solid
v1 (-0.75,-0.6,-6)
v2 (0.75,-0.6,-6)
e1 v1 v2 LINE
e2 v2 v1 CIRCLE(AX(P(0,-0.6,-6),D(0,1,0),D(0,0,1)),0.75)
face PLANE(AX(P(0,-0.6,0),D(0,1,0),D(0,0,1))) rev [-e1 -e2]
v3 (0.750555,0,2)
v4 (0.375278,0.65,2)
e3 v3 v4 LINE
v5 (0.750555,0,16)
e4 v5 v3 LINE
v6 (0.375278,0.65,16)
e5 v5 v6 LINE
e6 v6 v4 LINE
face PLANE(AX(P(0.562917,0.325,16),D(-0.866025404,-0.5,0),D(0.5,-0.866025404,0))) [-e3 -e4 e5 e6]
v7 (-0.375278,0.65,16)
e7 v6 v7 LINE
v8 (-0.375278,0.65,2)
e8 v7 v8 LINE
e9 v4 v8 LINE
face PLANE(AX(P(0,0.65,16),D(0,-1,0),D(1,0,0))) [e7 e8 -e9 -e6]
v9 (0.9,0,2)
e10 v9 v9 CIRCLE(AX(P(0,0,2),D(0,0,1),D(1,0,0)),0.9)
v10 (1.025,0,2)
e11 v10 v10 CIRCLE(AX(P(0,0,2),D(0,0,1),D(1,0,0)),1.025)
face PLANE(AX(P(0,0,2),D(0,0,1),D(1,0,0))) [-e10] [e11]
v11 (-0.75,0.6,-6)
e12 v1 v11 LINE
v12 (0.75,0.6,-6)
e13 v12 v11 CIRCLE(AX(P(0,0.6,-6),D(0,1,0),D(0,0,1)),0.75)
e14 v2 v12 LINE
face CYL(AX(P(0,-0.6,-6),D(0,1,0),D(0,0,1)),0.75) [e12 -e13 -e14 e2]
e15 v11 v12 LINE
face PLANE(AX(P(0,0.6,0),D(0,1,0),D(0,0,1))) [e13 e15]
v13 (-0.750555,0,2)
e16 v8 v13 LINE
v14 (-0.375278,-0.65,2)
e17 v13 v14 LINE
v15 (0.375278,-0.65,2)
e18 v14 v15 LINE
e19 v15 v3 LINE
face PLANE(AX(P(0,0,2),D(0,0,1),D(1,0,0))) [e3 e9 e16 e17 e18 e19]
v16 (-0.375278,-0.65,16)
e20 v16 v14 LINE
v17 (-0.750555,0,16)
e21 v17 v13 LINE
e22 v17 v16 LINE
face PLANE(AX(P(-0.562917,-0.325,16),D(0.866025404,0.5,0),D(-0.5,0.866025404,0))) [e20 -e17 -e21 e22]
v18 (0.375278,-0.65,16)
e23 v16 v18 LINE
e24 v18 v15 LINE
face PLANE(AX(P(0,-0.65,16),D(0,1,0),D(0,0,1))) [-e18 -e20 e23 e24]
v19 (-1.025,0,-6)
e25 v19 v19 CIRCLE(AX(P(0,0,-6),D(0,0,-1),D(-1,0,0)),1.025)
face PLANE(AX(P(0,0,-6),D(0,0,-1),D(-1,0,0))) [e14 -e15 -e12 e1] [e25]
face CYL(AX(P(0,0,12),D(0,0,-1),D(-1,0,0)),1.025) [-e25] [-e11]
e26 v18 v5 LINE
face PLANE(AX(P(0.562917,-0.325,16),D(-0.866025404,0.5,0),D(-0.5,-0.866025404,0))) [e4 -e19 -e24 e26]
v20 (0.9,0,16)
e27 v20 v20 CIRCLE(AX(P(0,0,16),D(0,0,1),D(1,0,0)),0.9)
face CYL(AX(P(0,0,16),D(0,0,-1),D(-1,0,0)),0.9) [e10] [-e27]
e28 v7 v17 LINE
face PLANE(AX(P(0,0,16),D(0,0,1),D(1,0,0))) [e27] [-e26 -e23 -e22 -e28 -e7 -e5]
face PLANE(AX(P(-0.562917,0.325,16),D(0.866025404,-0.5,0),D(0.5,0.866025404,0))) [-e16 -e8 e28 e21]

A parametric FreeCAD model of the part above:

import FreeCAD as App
import Part
import Sketcher
from FreeCAD import Vector
Q = App.Units.Quantity


def add_polygon(sketch, points):
    """Adds a closed chain of lines whose ends are joined by coincident constraints."""
    first, n = sketch.GeometryCount, len(points)
    for a, b in zip(points, points[1:] + points[:1]):
        sketch.addGeometry(Part.LineSegment(App.Vector(*a, 0), App.Vector(*b, 0)), False)
    for i in range(n):
        sketch.addConstraint(Sketcher.Constraint("Coincident", first + i, 2, first + (i + 1) % n, 1))

doc = App.newDocument("Part")
body = doc.addObject("PartDesign::Body", "Body")

sketch1 = body.newObject("Sketcher::SketchObject", "Sketch")
sketch1.AttachmentSupport = (doc.getObject("XY_Plane"), [""])
sketch1.MapMode = "FlatFace"
sketch1.addGeometry(Part.Circle(Vector(0, 0, 0), Vector(0, 0, 1), 1), False)
sketch1.addConstraint(Sketcher.Constraint("Coincident", 0, 3, -1, 1))
sketch1.addConstraint(Sketcher.Constraint("Diameter", 0, 2.05))
pad1 = body.newObject("PartDesign::Pad", "Pad")
pad1.Profile = sketch1
pad1.Length = 12

sketch2 = body.newObject("Sketcher::SketchObject", "Sketch001")
sketch2.AttachmentSupport = (doc.getObject("XY_Plane"), [""])
sketch2.MapMode = "FlatFace"
sketch2.AttachmentOffset = App.Placement(Vector(0, 0, 12), App.Rotation())
add_polygon(sketch2, [(0.9, 0), (0.4, 0.8), (-0.4, 0.8), (-0.9, 0), (-0.4, -0.8), (0.4, -0.8)])
sketch2.addConstraint(Sketcher.Constraint("Horizontal", 1))
sketch2.addConstraint(Sketcher.Constraint("Horizontal", 4))
sketch2.addConstraint(Sketcher.Constraint("Symmetric", 0, 2, 3, 2, -1, 1))
sketch2.addConstraint(Sketcher.Constraint("Symmetric", 2, 2, 5, 2, -1, 1))
sketch2.addConstraint(Sketcher.Constraint("PointOnObject", 2, 2, -1))
sketch2.addConstraint(Sketcher.Constraint("Parallel", 2, 5))
sketch2.addConstraint(Sketcher.Constraint("Vertical", 1, 2, 3, 2))
sketch2.addConstraint(Sketcher.Constraint("Angle", 0, Q("120 deg")))
sketch2.addConstraint(Sketcher.Constraint("DistanceY", 3, 2, 1, 2, 1.5))
sketch2.addConstraint(Sketcher.Constraint("DistanceX", 1, 2, 1, 1, 0.866025))
pocket1 = body.newObject("PartDesign::Pocket", "Pocket")
pocket1.Profile = sketch2
pocket1.Length = 7

sketch3 = body.newObject("Sketcher::SketchObject", "Sketch002")
sketch3.AttachmentSupport = (doc.getObject("XY_Plane"), [""])
sketch3.MapMode = "FlatFace"
sketch3.AttachmentOffset = App.Placement(Vector(0, 0, -4), App.Rotation())
sketch3.addGeometry(Part.Circle(Vector(0, 0, 0), Vector(0, 0, 1), 1), False)
sketch3.addConstraint(Sketcher.Constraint("Coincident", 0, 3, -1, 1))
sketch3.addConstraint(Sketcher.Constraint("Diameter", 0, 2.05))
pad2 = body.newObject("PartDesign::Pad", "Pad001")
pad2.Profile = sketch3
pad2.Length = 4

sketch4 = body.newObject("Sketcher::SketchObject", "Sketch003")
sketch4.AttachmentSupport = (doc.getObject("XY_Plane"), [""])
sketch4.MapMode = "FlatFace"
sketch4.AttachmentOffset = App.Placement(Vector(0, 0, 12), App.Rotation())
sketch4.addGeometry(Part.Circle(Vector(0, 0, 0), Vector(0, 0, 1), 1), False)
add_polygon(sketch4, [(0.4, 0.8), (0.9, 0), (0.4, -0.8), (-0.4, -0.8), (-0.9, 0), (-0.4, 0.8)])
sketch4.addConstraint(Sketcher.Constraint("Horizontal", 3))
sketch4.addConstraint(Sketcher.Constraint("Horizontal", 6))
sketch4.addConstraint(Sketcher.Constraint("Coincident", 0, 3, -1, 1))
sketch4.addConstraint(Sketcher.Constraint("Symmetric", 1, 2, 4, 2, -1, 1))
sketch4.addConstraint(Sketcher.Constraint("Symmetric", 2, 2, 5, 2, -1, 1))
sketch4.addConstraint(Sketcher.Constraint("PointOnObject", 1, 2, -1))
sketch4.addConstraint(Sketcher.Constraint("Parallel", 1, 4))
sketch4.addConstraint(Sketcher.Constraint("Vertical", 3, 2, 5, 2))
sketch4.addConstraint(Sketcher.Constraint("Diameter", 0, 2.05))
sketch4.addConstraint(Sketcher.Constraint("Angle", 1, Q("-60 deg")))
sketch4.addConstraint(Sketcher.Constraint("DistanceY", 3, 2, 5, 2, 1.5))
sketch4.addConstraint(Sketcher.Constraint("DistanceX", 3, 2, 3, 1, 0.866025))
pad3 = body.newObject("PartDesign::Pad", "Pad002")
pad3.Profile = sketch4
pad3.Length = 7

sketch5 = body.newObject("Sketcher::SketchObject", "Sketch004")
sketch5.AttachmentSupport = (doc.getObject("XY_Plane"), [""])
sketch5.MapMode = "FlatFace"
sketch5.AttachmentOffset = App.Placement(Vector(0, 0, -6), App.Rotation())
sketch5.addGeometry(Part.Circle(Vector(0, 0, 0), Vector(0, 0, 1), 1), False)
sketch5.addConstraint(Sketcher.Constraint("Coincident", 0, 3, -1, 1))
sketch5.addConstraint(Sketcher.Constraint("Diameter", 0, 2.05))
pad4 = body.newObject("PartDesign::Pad", "Pad003")
pad4.Profile = sketch5
pad4.Length = 2

sketch6 = body.newObject("Sketcher::SketchObject", "Sketch005")
sketch6.AttachmentSupport = (doc.getObject("XZ_Plane"), [""])
sketch6.MapMode = "FlatFace"
sketch6.addGeometry(Part.Circle(Vector(0, -6, 0), Vector(0, 0, 1), 0.8), False)
sketch6.addConstraint(Sketcher.Constraint("PointOnObject", 0, 3, -2))
sketch6.addConstraint(Sketcher.Constraint("Diameter", 0, 1.5))
sketch6.addConstraint(Sketcher.Constraint("DistanceY", 0, 3, -1, 1, 6.0))
pad5 = body.newObject("PartDesign::Pad", "Pad004")
pad5.Profile = sketch6
pad5.Type = "TwoLengths"
pad5.Length = 0.6
pad5.Length2 = 0.6
pad5.Reversed = True

sketch7 = body.newObject("Sketcher::SketchObject", "Sketch006")
sketch7.AttachmentSupport = (doc.getObject("XY_Plane"), [""])
sketch7.MapMode = "FlatFace"
sketch7.AttachmentOffset = App.Placement(Vector(0, 0, 2), App.Rotation())
sketch7.addGeometry(Part.Circle(Vector(0, 0, 0), Vector(0, 0, 1), 1), False)
sketch7.addConstraint(Sketcher.Constraint("Coincident", 0, 3, -1, 1))
sketch7.addConstraint(Sketcher.Constraint("Diameter", 0, 2.05))
pocket2 = body.newObject("PartDesign::Pocket", "Pocket001")
pocket2.Profile = sketch7
pocket2.Length = 17
pocket2.Reversed = True

sketch8 = body.newObject("Sketcher::SketchObject", "Sketch007")
sketch8.AttachmentSupport = (doc.getObject("XY_Plane"), [""])
sketch8.MapMode = "FlatFace"
sketch8.AttachmentOffset = App.Placement(Vector(0, 0, 2), App.Rotation())
sketch8.addGeometry(Part.Circle(Vector(0, 0, 0), Vector(0, 0, 1), 0.9), False)
add_polygon(sketch8, [(0.4, 0.7), (0.8, 0), (0.4, -0.7), (-0.4, -0.7), (-0.8, 0), (-0.4, 0.7)])
sketch8.addConstraint(Sketcher.Constraint("Horizontal", 3))
sketch8.addConstraint(Sketcher.Constraint("Horizontal", 6))
sketch8.addConstraint(Sketcher.Constraint("Coincident", 0, 3, -1, 1))
sketch8.addConstraint(Sketcher.Constraint("Symmetric", 1, 2, 4, 2, -1, 1))
sketch8.addConstraint(Sketcher.Constraint("Symmetric", 2, 2, 5, 2, -1, 1))
sketch8.addConstraint(Sketcher.Constraint("PointOnObject", 1, 2, -1))
sketch8.addConstraint(Sketcher.Constraint("Parallel", 1, 4))
sketch8.addConstraint(Sketcher.Constraint("Vertical", 3, 2, 5, 2))
sketch8.addConstraint(Sketcher.Constraint("Diameter", 0, 1.8))
sketch8.addConstraint(Sketcher.Constraint("Angle", 1, Q("-60 deg")))
sketch8.addConstraint(Sketcher.Constraint("DistanceY", 3, 2, 5, 2, 1.3))
sketch8.addConstraint(Sketcher.Constraint("DistanceX", 3, 2, 3, 1, 0.750555))
pad6 = body.newObject("PartDesign::Pad", "Pad005")
pad6.Profile = sketch8
pad6.Length = 14

doc.recompute()
